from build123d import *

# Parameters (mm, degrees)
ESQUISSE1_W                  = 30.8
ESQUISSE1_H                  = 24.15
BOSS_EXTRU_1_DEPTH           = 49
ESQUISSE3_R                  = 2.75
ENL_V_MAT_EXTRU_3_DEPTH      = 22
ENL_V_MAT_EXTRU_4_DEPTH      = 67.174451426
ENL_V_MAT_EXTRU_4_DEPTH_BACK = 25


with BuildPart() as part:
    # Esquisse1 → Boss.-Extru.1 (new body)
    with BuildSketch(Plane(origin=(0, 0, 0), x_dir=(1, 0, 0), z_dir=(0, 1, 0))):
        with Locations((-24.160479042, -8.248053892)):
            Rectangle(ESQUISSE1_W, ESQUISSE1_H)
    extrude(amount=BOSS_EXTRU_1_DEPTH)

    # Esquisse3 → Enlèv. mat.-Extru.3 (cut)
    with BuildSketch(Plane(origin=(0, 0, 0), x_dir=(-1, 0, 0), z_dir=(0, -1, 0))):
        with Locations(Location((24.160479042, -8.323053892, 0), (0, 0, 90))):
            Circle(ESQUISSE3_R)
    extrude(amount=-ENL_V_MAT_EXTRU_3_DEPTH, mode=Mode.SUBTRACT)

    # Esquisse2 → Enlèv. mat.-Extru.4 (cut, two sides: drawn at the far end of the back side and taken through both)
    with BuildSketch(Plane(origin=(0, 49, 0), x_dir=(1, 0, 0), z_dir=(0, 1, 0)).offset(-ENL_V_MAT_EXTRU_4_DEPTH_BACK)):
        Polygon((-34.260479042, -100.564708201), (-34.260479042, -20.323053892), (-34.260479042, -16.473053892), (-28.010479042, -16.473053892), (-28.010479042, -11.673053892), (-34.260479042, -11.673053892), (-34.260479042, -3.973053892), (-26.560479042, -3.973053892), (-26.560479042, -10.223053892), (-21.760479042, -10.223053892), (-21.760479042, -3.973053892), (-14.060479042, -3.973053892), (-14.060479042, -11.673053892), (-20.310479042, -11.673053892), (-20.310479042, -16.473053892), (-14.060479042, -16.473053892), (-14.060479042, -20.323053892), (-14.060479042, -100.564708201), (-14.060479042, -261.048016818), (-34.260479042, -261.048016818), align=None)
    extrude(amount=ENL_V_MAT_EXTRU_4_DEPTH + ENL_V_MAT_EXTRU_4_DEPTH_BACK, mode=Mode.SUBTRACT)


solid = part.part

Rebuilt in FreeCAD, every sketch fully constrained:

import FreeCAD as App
import Part
import Sketcher
from FreeCAD import Vector
Q = App.Units.Quantity

doc = App.newDocument("Part")
body = doc.addObject("PartDesign::Body", "Body")

# Sketch on XZ plane
sketch1 = body.newObject("Sketcher::SketchObject", "Sketch")
sketch1.AttachmentSupport = (doc.getObject("XZ_Plane"), [""])
sketch1.MapMode = "FlatFace"
sketch1.addGeometry(Part.LineSegment(Vector(-40, -4, 0), Vector(-40, 20, 0)), False)
sketch1.addGeometry(Part.LineSegment(Vector(-40, 20, 0), Vector(-9, 20, 0)), False)
sketch1.addGeometry(Part.LineSegment(Vector(-9, 20, 0), Vector(-9, -4, 0)), False)
sketch1.addGeometry(Part.LineSegment(Vector(-9, -4, 0), Vector(-40, -4, 0)), False)
sketch1.addConstraint(Sketcher.Constraint("Coincident", 0, 2, 1, 1))
sketch1.addConstraint(Sketcher.Constraint("Coincident", 1, 2, 2, 1))
sketch1.addConstraint(Sketcher.Constraint("Coincident", 2, 2, 3, 1))
sketch1.addConstraint(Sketcher.Constraint("Coincident", 3, 2, 0, 1))
sketch1.addConstraint(Sketcher.Constraint("Vertical", 0))
sketch1.addConstraint(Sketcher.Constraint("Horizontal", 1))
sketch1.addConstraint(Sketcher.Constraint("Vertical", 2))
sketch1.addConstraint(Sketcher.Constraint("Horizontal", 3))
sketch1.addConstraint(Sketcher.Constraint("DistanceX", 1, 1, 1, 2, Q("30.8 mm")))
sketch1.addConstraint(Sketcher.Constraint("DistanceY", 0, 1, 0, 2, Q("24.15 mm")))
sketch1.addConstraint(Sketcher.Constraint("DistanceX", 0, 2, -1, 1, Q("39.560479 mm")))
sketch1.addConstraint(Sketcher.Constraint("DistanceY", -1, 1, 0, 2, Q("20.323054 mm")))
pad1 = body.newObject("PartDesign::Pad", "Pad")
pad1.Profile = sketch1
pad1.Length = 49
pad1.Reversed = True

# Sketch on XZ plane
sketch2 = body.newObject("Sketcher::SketchObject", "Sketch001")
sketch2.AttachmentSupport = (doc.getObject("XZ_Plane"), [""])
sketch2.MapMode = "FlatFace"
sketch2.addGeometry(Part.Circle(Vector(-24.2, 8.3, 0), Vector(0, 0, 1), 2.8), False)
sketch2.addConstraint(Sketcher.Constraint("Diameter", 0, Q("5.5 mm")))
sketch2.addConstraint(Sketcher.Constraint("DistanceX", 0, 3, -1, 1, Q("24.160479 mm")))
sketch2.addConstraint(Sketcher.Constraint("DistanceY", -1, 1, 0, 3, Q("8.323054 mm")))
pocket1 = body.newObject("PartDesign::Pocket", "Pocket")
pocket1.Profile = sketch2
pocket1.Length = 22

# Sketch on XZ plane
sketch3 = body.newObject("Sketcher::SketchObject", "Sketch002")
sketch3.AttachmentSupport = (doc.getObject("XZ_Plane"), [""])
sketch3.MapMode = "FlatFace"
sketch3.AttachmentOffset = App.Placement(Vector(0, 0, -49), App.Rotation())
sketch3.addGeometry(Part.LineSegment(Vector(-34.3, 16.5, 0), Vector(-34.3, 261, 0)), False)
sketch3.addGeometry(Part.LineSegment(Vector(-34.3, 261, 0), Vector(-14.1, 261, 0)), False)
sketch3.addGeometry(Part.LineSegment(Vector(-14.1, 261, 0), Vector(-14.1, 16.5, 0)), False)
sketch3.addGeometry(Part.LineSegment(Vector(-14.1, 16.5, 0), Vector(-20.3, 16.5, 0)), False)
sketch3.addGeometry(Part.LineSegment(Vector(-20.3, 16.5, 0), Vector(-20.3, 11.7, 0)), False)
sketch3.addGeometry(Part.LineSegment(Vector(-20.3, 11.7, 0), Vector(-14.1, 11.7, 0)), False)
sketch3.addGeometry(Part.LineSegment(Vector(-14.1, 11.7, 0), Vector(-14.1, 4, 0)), False)
sketch3.addGeometry(Part.LineSegment(Vector(-14.1, 4, 0), Vector(-21.8, 4, 0)), False)
sketch3.addGeometry(Part.LineSegment(Vector(-21.8, 4, 0), Vector(-21.8, 10.2, 0)), False)
sketch3.addGeometry(Part.LineSegment(Vector(-21.8, 10.2, 0), Vector(-26.6, 10.2, 0)), False)
sketch3.addGeometry(Part.LineSegment(Vector(-26.6, 10.2, 0), Vector(-26.6, 4, 0)), False)
sketch3.addGeometry(Part.LineSegment(Vector(-26.6, 4, 0), Vector(-34.3, 4, 0)), False)
sketch3.addGeometry(Part.LineSegment(Vector(-34.3, 4, 0), Vector(-34.3, 11.7, 0)), False)
sketch3.addGeometry(Part.LineSegment(Vector(-34.3, 11.7, 0), Vector(-28, 11.7, 0)), False)
sketch3.addGeometry(Part.LineSegment(Vector(-28, 11.7, 0), Vector(-28, 16.5, 0)), False)
sketch3.addGeometry(Part.LineSegment(Vector(-28, 16.5, 0), Vector(-34.3, 16.5, 0)), False)
sketch3.addConstraint(Sketcher.Constraint("Coincident", 0, 2, 1, 1))
sketch3.addConstraint(Sketcher.Constraint("Coincident", 1, 2, 2, 1))
sketch3.addConstraint(Sketcher.Constraint("Coincident", 2, 2, 3, 1))
sketch3.addConstraint(Sketcher.Constraint("Coincident", 3, 2, 4, 1))
sketch3.addConstraint(Sketcher.Constraint("Coincident", 4, 2, 5, 1))
sketch3.addConstraint(Sketcher.Constraint("Coincident", 5, 2, 6, 1))
sketch3.addConstraint(Sketcher.Constraint("Coincident", 6, 2, 7, 1))
sketch3.addConstraint(Sketcher.Constraint("Coincident", 7, 2, 8, 1))
sketch3.addConstraint(Sketcher.Constraint("Coincident", 8, 2, 9, 1))
sketch3.addConstraint(Sketcher.Constraint("Coincident", 9, 2, 10, 1))
sketch3.addConstraint(Sketcher.Constraint("Coincident", 10, 2, 11, 1))
sketch3.addConstraint(Sketcher.Constraint("Coincident", 11, 2, 12, 1))
sketch3.addConstraint(Sketcher.Constraint("Coincident", 12, 2, 13, 1))
sketch3.addConstraint(Sketcher.Constraint("Coincident", 13, 2, 14, 1))
sketch3.addConstraint(Sketcher.Constraint("Coincident", 14, 2, 15, 1))
sketch3.addConstraint(Sketcher.Constraint("Coincident", 15, 2, 0, 1))
sketch3.addConstraint(Sketcher.Constraint("Vertical", 0))
sketch3.addConstraint(Sketcher.Constraint("Horizontal", 1))
sketch3.addConstraint(Sketcher.Constraint("Vertical", 2))
sketch3.addConstraint(Sketcher.Constraint("Horizontal", 3))
sketch3.addConstraint(Sketcher.Constraint("Vertical", 4))
sketch3.addConstraint(Sketcher.Constraint("Horizontal", 5))
sketch3.addConstraint(Sketcher.Constraint("Vertical", 6))
sketch3.addConstraint(Sketcher.Constraint("Horizontal", 7))
sketch3.addConstraint(Sketcher.Constraint("Vertical", 8))
sketch3.addConstraint(Sketcher.Constraint("Horizontal", 9))
sketch3.addConstraint(Sketcher.Constraint("Vertical", 10))
sketch3.addConstraint(Sketcher.Constraint("Horizontal", 11))
sketch3.addConstraint(Sketcher.Constraint("Vertical", 12))
sketch3.addConstraint(Sketcher.Constraint("Horizontal", 13))
sketch3.addConstraint(Sketcher.Constraint("Vertical", 14))
sketch3.addConstraint(Sketcher.Constraint("Horizontal", 15))
sketch3.addConstraint(Sketcher.Constraint("Horizontal", 7, 2, 10, 2))
sketch3.addConstraint(Sketcher.Constraint("Horizontal", 5, 2, 12, 2))
sketch3.addConstraint(Sketcher.Constraint("Horizontal", 3, 2, 14, 2))
sketch3.addConstraint(Sketcher.Constraint("Vertical", 2, 2, 5, 2))
sketch3.addConstraint(Sketcher.Constraint("Vertical", 0, 2, 11, 2))
sketch3.addConstraint(Sketcher.Constraint("Equal", 7, 11))
sketch3.addConstraint(Sketcher.Constraint("Equal", 5, 13))
sketch3.addConstraint(Sketcher.Constraint("Equal", 9, 4))
sketch3.addConstraint(Sketcher.Constraint("Equal", 11, 6))
sketch3.addConstraint(Sketcher.Constraint("Equal", 15, 8))
sketch3.addConstraint(Sketcher.Constraint("DistanceX", 1, 1, 1, 2, Q("20.2 mm")))
sketch3.addConstraint(Sketcher.Constraint("DistanceX", 7, 2, 7, 1, Q("7.7 mm")))
sketch3.addConstraint(Sketcher.Constraint("DistanceX", 3, 2, 3, 1, Q("6.25 mm")))
sketch3.addConstraint(Sketcher.Constraint("DistanceY", 0, 1, 0, 2, Q("244.574963 mm")))
sketch3.addConstraint(Sketcher.Constraint("DistanceX", 0, 2, -1, 1, Q("34.260479 mm")))
sketch3.addConstraint(Sketcher.Constraint("DistanceY", -1, 1, 0, 2, Q("261.048017 mm")))
pocket2 = body.newObject("PartDesign::Pocket", "Pocket001")
pocket2.Profile = sketch3
pocket2.Type = "TwoLengths"
pocket2.Length = 67.174451
pocket2.Length2 = 25

doc.recompute()
